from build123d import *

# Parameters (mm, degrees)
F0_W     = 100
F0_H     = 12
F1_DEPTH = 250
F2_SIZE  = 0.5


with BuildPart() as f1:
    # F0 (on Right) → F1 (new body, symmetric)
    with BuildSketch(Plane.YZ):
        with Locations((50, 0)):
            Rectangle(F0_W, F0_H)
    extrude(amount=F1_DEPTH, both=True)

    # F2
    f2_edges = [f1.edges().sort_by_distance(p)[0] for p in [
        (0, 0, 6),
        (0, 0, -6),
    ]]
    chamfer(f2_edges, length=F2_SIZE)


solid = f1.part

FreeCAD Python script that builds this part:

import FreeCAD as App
import Part
import Sketcher
Q = App.Units.Quantity


def edges_at(feature, points):
    """Names of the edges that pass closest to the given points."""
    edges = feature.Shape.Edges
    near = lambda p: min(range(len(edges)), key=lambda i: edges[i].distToShape(Part.Vertex(*p))[0])
    return sorted({f"Edge{near(p) + 1}" for p in points})

doc = App.newDocument("Part")
params = doc.addObject("Spreadsheet::Sheet", "Params")
for row, (alias, value) in enumerate([
    ("sketch1_width", "100 mm"),
    ("sketch1_height", "12 mm"),
    ("pad1_length", "500 mm"),
    ("chamfer_size", "0.5 mm"),
], start=1):
    params.set(f"A{row}", alias)
    params.set(f"B{row}", "=" + value)
    params.setAlias(f"B{row}", alias)

body = doc.addObject("PartDesign::Body", "Body")

# Sketch on YZ plane
sketch1 = doc.addObject("Sketcher::SketchObject", "Sketch")
body.addObject(sketch1)
sketch1.AttachmentSupport = (doc.YZ_Plane, [""])
sketch1.MapMode = "FlatFace"
sketch1.addGeometry(Part.LineSegment(App.Vector(0, 6, 0), App.Vector(0, -6, 0)), False)
sketch1.addGeometry(Part.LineSegment(App.Vector(0, -6, 0), App.Vector(100, -6, 0)), False)
sketch1.addGeometry(Part.LineSegment(App.Vector(100, -6, 0), App.Vector(100, 6, 0)), False)
sketch1.addGeometry(Part.LineSegment(App.Vector(100, 6, 0), App.Vector(0, 6, 0)), False)
sketch1.addConstraint(Sketcher.Constraint("Coincident", 0, 2, 1, 1))
sketch1.addConstraint(Sketcher.Constraint("Coincident", 1, 2, 2, 1))
sketch1.addConstraint(Sketcher.Constraint("Coincident", 2, 2, 3, 1))
sketch1.addConstraint(Sketcher.Constraint("Coincident", 3, 2, 0, 1))
sketch1.addConstraint(Sketcher.Constraint("Vertical", 0))
sketch1.addConstraint(Sketcher.Constraint("Horizontal", 1))
sketch1.addConstraint(Sketcher.Constraint("Vertical", 2))
sketch1.addConstraint(Sketcher.Constraint("Horizontal", 3))
sketch1.addConstraint(Sketcher.Constraint("Symmetric", 0, 2, 3, 2, -1, 1))
sketch1.addConstraint(Sketcher.Constraint("DistanceX", 1, 1, 1, 2, Q("100 mm")))
sketch1.addConstraint(Sketcher.Constraint("DistanceY", 0, 2, 0, 1, Q("12 mm")))
sketch1.setExpression("Constraints[9]", "Params.sketch1_width")
sketch1.setExpression("Constraints[10]", "Params.sketch1_height")
pad1 = doc.addObject("PartDesign::Pad", "Pad")
body.addObject(pad1)
pad1.Profile = sketch1
pad1.setExpression("Length", "Params.pad1_length")
pad1.Midplane = True
doc.recompute()

chamfer = doc.addObject("PartDesign::Chamfer", "Chamfer")
body.addObject(chamfer)
chamfer.Base = (pad1, edges_at(pad1, [(0, 0, 6), (0, 0, -6)]))
chamfer.setExpression("Size", "Params.chamfer_size")

doc.recompute()
